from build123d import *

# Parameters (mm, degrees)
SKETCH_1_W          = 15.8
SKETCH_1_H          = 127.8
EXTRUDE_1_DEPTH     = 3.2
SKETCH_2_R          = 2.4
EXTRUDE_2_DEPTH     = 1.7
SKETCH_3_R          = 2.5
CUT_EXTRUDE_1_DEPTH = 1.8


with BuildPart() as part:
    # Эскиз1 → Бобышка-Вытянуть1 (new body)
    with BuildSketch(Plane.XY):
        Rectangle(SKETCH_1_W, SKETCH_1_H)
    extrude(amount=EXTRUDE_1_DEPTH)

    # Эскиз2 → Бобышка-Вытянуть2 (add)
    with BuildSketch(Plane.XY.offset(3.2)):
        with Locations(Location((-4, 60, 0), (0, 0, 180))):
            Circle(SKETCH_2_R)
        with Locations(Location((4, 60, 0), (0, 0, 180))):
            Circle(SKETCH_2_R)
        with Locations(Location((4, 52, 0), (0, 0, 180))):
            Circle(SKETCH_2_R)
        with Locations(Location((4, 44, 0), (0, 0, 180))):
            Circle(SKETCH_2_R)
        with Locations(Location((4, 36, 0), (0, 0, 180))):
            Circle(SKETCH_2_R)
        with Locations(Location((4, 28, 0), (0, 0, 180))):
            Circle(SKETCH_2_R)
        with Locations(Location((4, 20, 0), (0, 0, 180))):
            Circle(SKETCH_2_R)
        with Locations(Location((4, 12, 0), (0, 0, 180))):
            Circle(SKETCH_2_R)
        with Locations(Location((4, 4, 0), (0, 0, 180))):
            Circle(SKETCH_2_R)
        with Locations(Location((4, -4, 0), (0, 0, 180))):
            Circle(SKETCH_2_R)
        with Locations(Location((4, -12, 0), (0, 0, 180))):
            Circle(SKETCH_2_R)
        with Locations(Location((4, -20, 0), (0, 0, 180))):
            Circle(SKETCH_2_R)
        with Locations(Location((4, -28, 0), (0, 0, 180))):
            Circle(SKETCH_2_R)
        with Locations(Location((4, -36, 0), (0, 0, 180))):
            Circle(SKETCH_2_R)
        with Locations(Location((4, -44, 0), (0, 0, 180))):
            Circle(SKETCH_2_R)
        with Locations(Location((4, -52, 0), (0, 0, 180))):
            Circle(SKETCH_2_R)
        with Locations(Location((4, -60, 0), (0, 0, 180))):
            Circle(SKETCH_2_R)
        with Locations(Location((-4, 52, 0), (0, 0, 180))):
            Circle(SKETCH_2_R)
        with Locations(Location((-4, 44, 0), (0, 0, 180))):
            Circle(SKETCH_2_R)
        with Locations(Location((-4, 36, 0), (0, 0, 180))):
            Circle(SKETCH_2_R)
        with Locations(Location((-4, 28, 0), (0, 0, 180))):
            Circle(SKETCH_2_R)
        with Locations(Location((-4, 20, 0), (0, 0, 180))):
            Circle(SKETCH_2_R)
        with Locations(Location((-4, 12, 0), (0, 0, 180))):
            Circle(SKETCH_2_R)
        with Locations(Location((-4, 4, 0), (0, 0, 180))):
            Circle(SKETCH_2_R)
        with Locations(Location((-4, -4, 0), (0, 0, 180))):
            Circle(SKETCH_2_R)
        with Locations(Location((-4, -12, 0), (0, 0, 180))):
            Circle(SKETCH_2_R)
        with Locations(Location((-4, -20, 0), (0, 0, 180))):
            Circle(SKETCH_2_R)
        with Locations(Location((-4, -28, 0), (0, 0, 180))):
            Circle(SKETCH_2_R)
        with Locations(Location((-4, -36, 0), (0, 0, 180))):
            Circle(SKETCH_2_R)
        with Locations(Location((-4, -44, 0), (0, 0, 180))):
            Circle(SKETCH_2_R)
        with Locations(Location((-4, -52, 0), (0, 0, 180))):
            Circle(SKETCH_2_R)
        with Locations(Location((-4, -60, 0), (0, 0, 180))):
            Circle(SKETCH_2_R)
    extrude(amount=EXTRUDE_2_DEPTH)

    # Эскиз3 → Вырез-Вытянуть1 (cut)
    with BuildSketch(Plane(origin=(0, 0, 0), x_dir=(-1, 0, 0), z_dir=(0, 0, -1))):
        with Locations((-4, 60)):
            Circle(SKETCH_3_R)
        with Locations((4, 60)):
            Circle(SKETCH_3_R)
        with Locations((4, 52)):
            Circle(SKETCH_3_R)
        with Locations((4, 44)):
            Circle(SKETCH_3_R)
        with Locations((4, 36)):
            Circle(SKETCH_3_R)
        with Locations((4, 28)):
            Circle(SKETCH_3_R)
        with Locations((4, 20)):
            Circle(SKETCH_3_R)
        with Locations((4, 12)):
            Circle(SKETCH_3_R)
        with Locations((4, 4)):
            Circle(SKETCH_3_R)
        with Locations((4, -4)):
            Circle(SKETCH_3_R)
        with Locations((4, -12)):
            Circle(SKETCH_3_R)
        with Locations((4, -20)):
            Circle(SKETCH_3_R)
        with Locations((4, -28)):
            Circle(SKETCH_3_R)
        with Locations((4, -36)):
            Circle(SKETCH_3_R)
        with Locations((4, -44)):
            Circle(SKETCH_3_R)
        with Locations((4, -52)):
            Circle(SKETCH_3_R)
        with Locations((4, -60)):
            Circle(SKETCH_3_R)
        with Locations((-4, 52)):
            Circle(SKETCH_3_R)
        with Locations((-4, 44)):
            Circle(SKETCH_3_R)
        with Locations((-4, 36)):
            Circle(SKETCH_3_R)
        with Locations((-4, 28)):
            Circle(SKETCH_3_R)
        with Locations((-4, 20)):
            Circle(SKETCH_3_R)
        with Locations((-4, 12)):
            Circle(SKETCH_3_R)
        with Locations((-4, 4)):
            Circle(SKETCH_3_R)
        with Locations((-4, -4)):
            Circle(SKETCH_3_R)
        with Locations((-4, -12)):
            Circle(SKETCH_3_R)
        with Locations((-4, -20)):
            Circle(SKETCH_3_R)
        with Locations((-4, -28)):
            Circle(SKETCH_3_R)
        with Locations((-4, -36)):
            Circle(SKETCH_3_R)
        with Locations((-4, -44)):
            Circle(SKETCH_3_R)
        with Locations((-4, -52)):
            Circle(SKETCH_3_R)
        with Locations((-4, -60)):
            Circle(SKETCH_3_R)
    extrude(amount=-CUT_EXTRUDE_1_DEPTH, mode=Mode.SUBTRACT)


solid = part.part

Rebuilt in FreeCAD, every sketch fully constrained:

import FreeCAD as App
import Part
import Sketcher


def add_polygon(sketch, points):
    """Adds a closed chain of lines whose ends are joined by coincident constraints."""
    first, n = sketch.GeometryCount, len(points)
    for a, b in zip(points, points[1:] + points[:1]):
        sketch.addGeometry(Part.LineSegment(App.Vector(*a, 0), App.Vector(*b, 0)), False)
    for i in range(n):
        sketch.addConstraint(Sketcher.Constraint("Coincident", first + i, 2, first + (i + 1) % n, 1))

doc = App.newDocument("Part")
params = doc.addObject("Spreadsheet::Sheet", "Params")
for row, (alias, value) in enumerate([
    ("sketch1_width", "15.8 mm"),
    ("sketch1_height", "127.8 mm"),
    ("pad1_length", "3.2 mm"),
    ("sketch2_diameter", "4.8 mm"),
    ("pad2_length", "1.7 mm"),
    ("sketch3_diameter", "5 mm"),
    ("pocket1_length", "1.8 mm"),
], start=1):
    params.set(f"A{row}", alias)
    params.set(f"B{row}", "=" + value)
    params.setAlias(f"B{row}", alias)

body = doc.addObject("PartDesign::Body", "Body")

# Sketch on XY plane
sketch1 = body.newObject("Sketcher::SketchObject", "Sketch")
sketch1.AttachmentSupport = (doc.getObject("XY_Plane"), [""])
sketch1.MapMode = "FlatFace"
add_polygon(sketch1, [(-8, 64), (-8, -64), (8, -64), (8, 64)])  # lines 0-3
sketch1.addConstraint([
    Sketcher.Constraint("Vertical", 0),
    Sketcher.Constraint("Horizontal", 1),
    Sketcher.Constraint("Vertical", 2),
    Sketcher.Constraint("Horizontal", 3),
    Sketcher.Constraint("Symmetric", 0, 2, 2, 2, -1, 1),
    Sketcher.Constraint("DistanceX", 1, 1, 1, 2, 15.8),
    Sketcher.Constraint("DistanceY", 0, 2, 0, 1, 127.8),
])
sketch1.setExpression("Constraints[9]", "Params.sketch1_width")
sketch1.setExpression("Constraints[10]", "Params.sketch1_height")
pad1 = body.newObject("PartDesign::Pad", "Pad")
pad1.Profile = sketch1
pad1.setExpression("Length", "Params.pad1_length")

# Sketch on XY plane
sketch2 = body.newObject("Sketcher::SketchObject", "Sketch001")
sketch2.AttachmentSupport = (doc.getObject("XY_Plane"), [""])
sketch2.MapMode = "FlatFace"
sketch2.AttachmentOffset = App.Placement(App.Vector(0, 0, 3.2), App.Rotation())
sketch2.addGeometry([
    Part.Circle(App.Vector(-4, 60, 0), App.Vector(0, 0, 1), 2.4),  # 0
    Part.Circle(App.Vector(4, 60, 0), App.Vector(0, 0, 1), 2.4),  # 1
    Part.Circle(App.Vector(4, 52, 0), App.Vector(0, 0, 1), 2.4),  # 2
    Part.Circle(App.Vector(4, 44, 0), App.Vector(0, 0, 1), 2.4),  # 3
    Part.Circle(App.Vector(4, 36, 0), App.Vector(0, 0, 1), 2.4),  # 4
    Part.Circle(App.Vector(4, 28, 0), App.Vector(0, 0, 1), 2.4),  # 5
    Part.Circle(App.Vector(4, 20, 0), App.Vector(0, 0, 1), 2.4),  # 6
    Part.Circle(App.Vector(4, 12, 0), App.Vector(0, 0, 1), 2.4),  # 7
    Part.Circle(App.Vector(4, 4, 0), App.Vector(0, 0, 1), 2.4),  # 8
    Part.Circle(App.Vector(4, -4, 0), App.Vector(0, 0, 1), 2.4),  # 9
    Part.Circle(App.Vector(4, -12, 0), App.Vector(0, 0, 1), 2.4),  # 10
    Part.Circle(App.Vector(4, -20, 0), App.Vector(0, 0, 1), 2.4),  # 11
    Part.Circle(App.Vector(4, -28, 0), App.Vector(0, 0, 1), 2.4),  # 12
    Part.Circle(App.Vector(4, -36, 0), App.Vector(0, 0, 1), 2.4),  # 13
    Part.Circle(App.Vector(4, -44, 0), App.Vector(0, 0, 1), 2.4),  # 14
    Part.Circle(App.Vector(4, -52, 0), App.Vector(0, 0, 1), 2.4),  # 15
    Part.Circle(App.Vector(4, -60, 0), App.Vector(0, 0, 1), 2.4),  # 16
    Part.Circle(App.Vector(-4, 52, 0), App.Vector(0, 0, 1), 2.4),  # 17
    Part.Circle(App.Vector(-4, 44, 0), App.Vector(0, 0, 1), 2.4),  # 18
    Part.Circle(App.Vector(-4, 36, 0), App.Vector(0, 0, 1), 2.4),  # 19
    Part.Circle(App.Vector(-4, 28, 0), App.Vector(0, 0, 1), 2.4),  # 20
    Part.Circle(App.Vector(-4, 20, 0), App.Vector(0, 0, 1), 2.4),  # 21
    Part.Circle(App.Vector(-4, 12, 0), App.Vector(0, 0, 1), 2.4),  # 22
    Part.Circle(App.Vector(-4, 4, 0), App.Vector(0, 0, 1), 2.4),  # 23
    Part.Circle(App.Vector(-4, -4, 0), App.Vector(0, 0, 1), 2.4),  # 24
    Part.Circle(App.Vector(-4, -12, 0), App.Vector(0, 0, 1), 2.4),  # 25
    Part.Circle(App.Vector(-4, -20, 0), App.Vector(0, 0, 1), 2.4),  # 26
    Part.Circle(App.Vector(-4, -28, 0), App.Vector(0, 0, 1), 2.4),  # 27
    Part.Circle(App.Vector(-4, -36, 0), App.Vector(0, 0, 1), 2.4),  # 28
    Part.Circle(App.Vector(-4, -44, 0), App.Vector(0, 0, 1), 2.4),  # 29
    Part.Circle(App.Vector(-4, -52, 0), App.Vector(0, 0, 1), 2.4),  # 30
    Part.Circle(App.Vector(-4, -60, 0), App.Vector(0, 0, 1), 2.4),  # 31
], False)
sketch2.addConstraint([
    Sketcher.Constraint("Equal", 0, 1),
    Sketcher.Constraint("Equal", 1, 2),
    Sketcher.Constraint("Equal", 2, 3),
    Sketcher.Constraint("Equal", 3, 4),
    Sketcher.Constraint("Equal", 4, 5),
    Sketcher.Constraint("Equal", 5, 6),
    Sketcher.Constraint("Equal", 6, 7),
    Sketcher.Constraint("Equal", 7, 8),
    Sketcher.Constraint("Equal", 8, 9),
    Sketcher.Constraint("Equal", 9, 10),
    Sketcher.Constraint("Equal", 10, 11),
    Sketcher.Constraint("Equal", 11, 12),
    Sketcher.Constraint("Equal", 12, 13),
    Sketcher.Constraint("Equal", 13, 14),
    Sketcher.Constraint("Equal", 14, 15),
    Sketcher.Constraint("Equal", 15, 16),
    Sketcher.Constraint("Equal", 16, 17),
    Sketcher.Constraint("Equal", 17, 18),
    Sketcher.Constraint("Equal", 18, 19),
    Sketcher.Constraint("Equal", 19, 20),
    Sketcher.Constraint("Equal", 20, 21),
    Sketcher.Constraint("Equal", 21, 22),
    Sketcher.Constraint("Equal", 22, 23),
    Sketcher.Constraint("Equal", 23, 24),
    Sketcher.Constraint("Equal", 24, 25),
    Sketcher.Constraint("Equal", 25, 26),
    Sketcher.Constraint("Equal", 26, 27),
    Sketcher.Constraint("Equal", 27, 28),
    Sketcher.Constraint("Equal", 28, 29),
    Sketcher.Constraint("Equal", 29, 30),
    Sketcher.Constraint("Equal", 30, 31),
    Sketcher.Constraint("Symmetric", 0, 3, 16, 3, -1, 1),
    Sketcher.Constraint("Symmetric", 15, 3, 17, 3, -1, 1),
    Sketcher.Constraint("Symmetric", 14, 3, 18, 3, -1, 1),
    Sketcher.Constraint("Symmetric", 13, 3, 19, 3, -1, 1),
    Sketcher.Constraint("Symmetric", 12, 3, 20, 3, -1, 1),
    Sketcher.Constraint("Symmetric", 11, 3, 21, 3, -1, 1),
    Sketcher.Constraint("Symmetric", 10, 3, 22, 3, -1, 1),
    Sketcher.Constraint("Symmetric", 9, 3, 23, 3, -1, 1),
    Sketcher.Constraint("Symmetric", 8, 3, 24, 3, -1, 1),
    Sketcher.Constraint("Symmetric", 7, 3, 25, 3, -1, 1),
    Sketcher.Constraint("Symmetric", 6, 3, 26, 3, -1, 1),
    Sketcher.Constraint("Symmetric", 5, 3, 27, 3, -1, 1),
    Sketcher.Constraint("Symmetric", 4, 3, 28, 3, -1, 1),
    Sketcher.Constraint("Symmetric", 3, 3, 29, 3, -1, 1),
    Sketcher.Constraint("Symmetric", 2, 3, 30, 3, -1, 1),
    Sketcher.Constraint("Symmetric", 1, 3, 31, 3, -1, 1),
    Sketcher.Constraint("Symmetric", 0, 3, 1, 3, -2),
    Sketcher.Constraint("Symmetric", 2, 3, 17, 3, -2),
    Sketcher.Constraint("Symmetric", 3, 3, 18, 3, -2),
    Sketcher.Constraint("Symmetric", 4, 3, 19, 3, -2),
    Sketcher.Constraint("Symmetric", 5, 3, 20, 3, -2),
    Sketcher.Constraint("Symmetric", 6, 3, 21, 3, -2),
    Sketcher.Constraint("Symmetric", 7, 3, 22, 3, -2),
    Sketcher.Constraint("Symmetric", 8, 3, 23, 3, -2),
    Sketcher.Constraint("Vertical", 1, 3, 2, 3),
    Sketcher.Constraint("Vertical", 2, 3, 3, 3),
    Sketcher.Constraint("Vertical", 3, 3, 4, 3),
    Sketcher.Constraint("Vertical", 4, 3, 5, 3),
    Sketcher.Constraint("Vertical", 5, 3, 6, 3),
    Sketcher.Constraint("Vertical", 6, 3, 7, 3),
    Sketcher.Constraint("Vertical", 7, 3, 8, 3),
    Sketcher.Constraint("Diameter", 0, 4.8),
    Sketcher.Constraint("DistanceX", 0, 3, -1, 1, 4.0),
    Sketcher.Constraint("DistanceY", -1, 1, 0, 3, 60.0),
    Sketcher.Constraint("DistanceY", -1, 1, 2, 3, 52.0),
    Sketcher.Constraint("DistanceY", -1, 1, 3, 3, 44.0),
    Sketcher.Constraint("DistanceY", -1, 1, 4, 3, 36.0),
    Sketcher.Constraint("DistanceY", -1, 1, 5, 3, 28.0),
    Sketcher.Constraint("DistanceY", -1, 1, 6, 3, 20.0),
    Sketcher.Constraint("DistanceY", -1, 1, 7, 3, 12.0),
    Sketcher.Constraint("DistanceY", -1, 1, 8, 3, 4.0),
])
sketch2.setExpression("Constraints[62]", "Params.sketch2_diameter")
pad2 = body.newObject("PartDesign::Pad", "Pad001")
pad2.Profile = sketch2
pad2.setExpression("Length", "Params.pad2_length")

# Sketch on XY plane
sketch3 = body.newObject("Sketcher::SketchObject", "Sketch002")
sketch3.AttachmentSupport = (doc.getObject("XY_Plane"), [""])
sketch3.MapMode = "FlatFace"
sketch3.addGeometry([
    Part.Circle(App.Vector(4, 60, 0), App.Vector(0, 0, 1), 2.5),  # 0
    Part.Circle(App.Vector(-4, 60, 0), App.Vector(0, 0, 1), 2.5),  # 1
    Part.Circle(App.Vector(-4, 52, 0), App.Vector(0, 0, 1), 2.5),  # 2
    Part.Circle(App.Vector(-4, 44, 0), App.Vector(0, 0, 1), 2.5),  # 3
    Part.Circle(App.Vector(-4, 36, 0), App.Vector(0, 0, 1), 2.5),  # 4
    Part.Circle(App.Vector(-4, 28, 0), App.Vector(0, 0, 1), 2.5),  # 5
    Part.Circle(App.Vector(-4, 20, 0), App.Vector(0, 0, 1), 2.5),  # 6
    Part.Circle(App.Vector(-4, 12, 0), App.Vector(0, 0, 1), 2.5),  # 7
    Part.Circle(App.Vector(-4, 4, 0), App.Vector(0, 0, 1), 2.5),  # 8
    Part.Circle(App.Vector(-4, -4, 0), App.Vector(0, 0, 1), 2.5),  # 9
    Part.Circle(App.Vector(-4, -12, 0), App.Vector(0, 0, 1), 2.5),  # 10
    Part.Circle(App.Vector(-4, -20, 0), App.Vector(0, 0, 1), 2.5),  # 11
    Part.Circle(App.Vector(-4, -28, 0), App.Vector(0, 0, 1), 2.5),  # 12
    Part.Circle(App.Vector(-4, -36, 0), App.Vector(0, 0, 1), 2.5),  # 13
    Part.Circle(App.Vector(-4, -44, 0), App.Vector(0, 0, 1), 2.5),  # 14
    Part.Circle(App.Vector(-4, -52, 0), App.Vector(0, 0, 1), 2.5),  # 15
    Part.Circle(App.Vector(-4, -60, 0), App.Vector(0, 0, 1), 2.5),  # 16
    Part.Circle(App.Vector(4, 52, 0), App.Vector(0, 0, 1), 2.5),  # 17
    Part.Circle(App.Vector(4, 44, 0), App.Vector(0, 0, 1), 2.5),  # 18
    Part.Circle(App.Vector(4, 36, 0), App.Vector(0, 0, 1), 2.5),  # 19
    Part.Circle(App.Vector(4, 28, 0), App.Vector(0, 0, 1), 2.5),  # 20
    Part.Circle(App.Vector(4, 20, 0), App.Vector(0, 0, 1), 2.5),  # 21
    Part.Circle(App.Vector(4, 12, 0), App.Vector(0, 0, 1), 2.5),  # 22
    Part.Circle(App.Vector(4, 4, 0), App.Vector(0, 0, 1), 2.5),  # 23
    Part.Circle(App.Vector(4, -4, 0), App.Vector(0, 0, 1), 2.5),  # 24
    Part.Circle(App.Vector(4, -12, 0), App.Vector(0, 0, 1), 2.5),  # 25
    Part.Circle(App.Vector(4, -20, 0), App.Vector(0, 0, 1), 2.5),  # 26
    Part.Circle(App.Vector(4, -28, 0), App.Vector(0, 0, 1), 2.5),  # 27
    Part.Circle(App.Vector(4, -36, 0), App.Vector(0, 0, 1), 2.5),  # 28
    Part.Circle(App.Vector(4, -44, 0), App.Vector(0, 0, 1), 2.5),  # 29
    Part.Circle(App.Vector(4, -52, 0), App.Vector(0, 0, 1), 2.5),  # 30
    Part.Circle(App.Vector(4, -60, 0), App.Vector(0, 0, 1), 2.5),  # 31
], False)
sketch3.addConstraint([
    Sketcher.Constraint("Equal", 0, 1),
    Sketcher.Constraint("Equal", 1, 2),
    Sketcher.Constraint("Equal", 2, 3),
    Sketcher.Constraint("Equal", 3, 4),
    Sketcher.Constraint("Equal", 4, 5),
    Sketcher.Constraint("Equal", 5, 6),
    Sketcher.Constraint("Equal", 6, 7),
    Sketcher.Constraint("Equal", 7, 8),
    Sketcher.Constraint("Equal", 8, 9),
    Sketcher.Constraint("Equal", 9, 10),
    Sketcher.Constraint("Equal", 10, 11),
    Sketcher.Constraint("Equal", 11, 12),
    Sketcher.Constraint("Equal", 12, 13),
    Sketcher.Constraint("Equal", 13, 14),
    Sketcher.Constraint("Equal", 14, 15),
    Sketcher.Constraint("Equal", 15, 16),
    Sketcher.Constraint("Equal", 16, 17),
    Sketcher.Constraint("Equal", 17, 18),
    Sketcher.Constraint("Equal", 18, 19),
    Sketcher.Constraint("Equal", 19, 20),
    Sketcher.Constraint("Equal", 20, 21),
    Sketcher.Constraint("Equal", 21, 22),
    Sketcher.Constraint("Equal", 22, 23),
    Sketcher.Constraint("Equal", 23, 24),
    Sketcher.Constraint("Equal", 24, 25),
    Sketcher.Constraint("Equal", 25, 26),
    Sketcher.Constraint("Equal", 26, 27),
    Sketcher.Constraint("Equal", 27, 28),
    Sketcher.Constraint("Equal", 28, 29),
    Sketcher.Constraint("Equal", 29, 30),
    Sketcher.Constraint("Equal", 30, 31),
    Sketcher.Constraint("Symmetric", 0, 3, 16, 3, -1, 1),
    Sketcher.Constraint("Symmetric", 15, 3, 17, 3, -1, 1),
    Sketcher.Constraint("Symmetric", 14, 3, 18, 3, -1, 1),
    Sketcher.Constraint("Symmetric", 13, 3, 19, 3, -1, 1),
    Sketcher.Constraint("Symmetric", 12, 3, 20, 3, -1, 1),
    Sketcher.Constraint("Symmetric", 11, 3, 21, 3, -1, 1),
    Sketcher.Constraint("Symmetric", 10, 3, 22, 3, -1, 1),
    Sketcher.Constraint("Symmetric", 9, 3, 23, 3, -1, 1),
    Sketcher.Constraint("Symmetric", 8, 3, 24, 3, -1, 1),
    Sketcher.Constraint("Symmetric", 7, 3, 25, 3, -1, 1),
    Sketcher.Constraint("Symmetric", 6, 3, 26, 3, -1, 1),
    Sketcher.Constraint("Symmetric", 5, 3, 27, 3, -1, 1),
    Sketcher.Constraint("Symmetric", 4, 3, 28, 3, -1, 1),
    Sketcher.Constraint("Symmetric", 3, 3, 29, 3, -1, 1),
    Sketcher.Constraint("Symmetric", 2, 3, 30, 3, -1, 1),
    Sketcher.Constraint("Symmetric", 1, 3, 31, 3, -1, 1),
    Sketcher.Constraint("Symmetric", 0, 3, 1, 3, -2),
    Sketcher.Constraint("Symmetric", 2, 3, 17, 3, -2),
    Sketcher.Constraint("Symmetric", 3, 3, 18, 3, -2),
    Sketcher.Constraint("Symmetric", 4, 3, 19, 3, -2),
    Sketcher.Constraint("Symmetric", 5, 3, 20, 3, -2),
    Sketcher.Constraint("Symmetric", 6, 3, 21, 3, -2),
    Sketcher.Constraint("Symmetric", 7, 3, 22, 3, -2),
    Sketcher.Constraint("Symmetric", 8, 3, 23, 3, -2),
    Sketcher.Constraint("Vertical", 1, 3, 2, 3),
    Sketcher.Constraint("Vertical", 2, 3, 3, 3),
    Sketcher.Constraint("Vertical", 3, 3, 4, 3),
    Sketcher.Constraint("Vertical", 4, 3, 5, 3),
    Sketcher.Constraint("Vertical", 5, 3, 6, 3),
    Sketcher.Constraint("Vertical", 6, 3, 7, 3),
    Sketcher.Constraint("Vertical", 7, 3, 8, 3),
    Sketcher.Constraint("Diameter", 0, 5.0),
    Sketcher.Constraint("DistanceX", -1, 1, 0, 3, 4.0),
    Sketcher.Constraint("DistanceY", -1, 1, 0, 3, 60.0),
    Sketcher.Constraint("DistanceY", -1, 1, 2, 3, 52.0),
    Sketcher.Constraint("DistanceY", -1, 1, 3, 3, 44.0),
    Sketcher.Constraint("DistanceY", -1, 1, 4, 3, 36.0),
    Sketcher.Constraint("DistanceY", -1, 1, 5, 3, 28.0),
    Sketcher.Constraint("DistanceY", -1, 1, 6, 3, 20.0),
    Sketcher.Constraint("DistanceY", -1, 1, 7, 3, 12.0),
    Sketcher.Constraint("DistanceY", -1, 1, 8, 3, 4.0),
])
sketch3.setExpression("Constraints[62]", "Params.sketch3_diameter")
pocket1 = body.newObject("PartDesign::Pocket", "Pocket")
pocket1.Profile = sketch3
pocket1.setExpression("Length", "Params.pocket1_length")
pocket1.Reversed = True

doc.recompute()
